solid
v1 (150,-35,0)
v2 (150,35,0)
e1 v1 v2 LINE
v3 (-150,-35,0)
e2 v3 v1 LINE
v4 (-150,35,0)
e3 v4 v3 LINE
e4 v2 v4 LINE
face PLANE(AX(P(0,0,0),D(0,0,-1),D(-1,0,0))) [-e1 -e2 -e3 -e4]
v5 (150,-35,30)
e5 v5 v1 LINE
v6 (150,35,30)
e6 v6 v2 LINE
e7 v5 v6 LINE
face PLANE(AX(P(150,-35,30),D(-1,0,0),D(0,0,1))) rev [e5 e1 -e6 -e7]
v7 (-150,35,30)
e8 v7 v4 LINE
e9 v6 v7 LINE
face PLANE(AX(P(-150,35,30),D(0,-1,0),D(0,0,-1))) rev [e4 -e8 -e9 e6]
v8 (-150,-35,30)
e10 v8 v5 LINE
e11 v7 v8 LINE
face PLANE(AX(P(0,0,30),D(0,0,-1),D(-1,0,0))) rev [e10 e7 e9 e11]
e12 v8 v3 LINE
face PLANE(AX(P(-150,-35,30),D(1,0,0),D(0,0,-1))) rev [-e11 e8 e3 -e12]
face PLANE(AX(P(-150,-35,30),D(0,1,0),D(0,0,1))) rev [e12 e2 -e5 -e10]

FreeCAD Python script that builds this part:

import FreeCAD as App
import Part
import Sketcher

doc = App.newDocument("Part")
body = doc.addObject("PartDesign::Body", "Body")

# Sketch on XY plane
sketch1 = body.newObject("Sketcher::SketchObject", "Sketch")
sketch1.AttachmentSupport = (doc.getObject("XY_Plane"), [""])
sketch1.MapMode = "FlatFace"
sketch1.addGeometry(Part.LineSegment(App.Vector(-150, 35, 0), App.Vector(-150, -35, 0)), False)
sketch1.addGeometry(Part.LineSegment(App.Vector(-150, -35, 0), App.Vector(150, -35, 0)), False)
sketch1.addGeometry(Part.LineSegment(App.Vector(150, -35, 0), App.Vector(150, 35, 0)), False)
sketch1.addGeometry(Part.LineSegment(App.Vector(150, 35, 0), App.Vector(-150, 35, 0)), False)
sketch1.addConstraint(Sketcher.Constraint("Coincident", 0, 2, 1, 1))
sketch1.addConstraint(Sketcher.Constraint("Coincident", 1, 2, 2, 1))
sketch1.addConstraint(Sketcher.Constraint("Coincident", 2, 2, 3, 1))
sketch1.addConstraint(Sketcher.Constraint("Coincident", 3, 2, 0, 1))
sketch1.addConstraint(Sketcher.Constraint("Vertical", 0))
sketch1.addConstraint(Sketcher.Constraint("Horizontal", 1))
sketch1.addConstraint(Sketcher.Constraint("Vertical", 2))
sketch1.addConstraint(Sketcher.Constraint("Horizontal", 3))
sketch1.addConstraint(Sketcher.Constraint("Symmetric", 0, 2, 2, 2, -1, 1))
sketch1.addConstraint(Sketcher.Constraint("DistanceX", 1, 1, 1, 2, 300.0))
sketch1.addConstraint(Sketcher.Constraint("DistanceY", 0, 2, 0, 1, 70.0))
pad1 = body.newObject("PartDesign::Pad", "Pad")
pad1.Profile = sketch1
pad1.Length = 30

doc.recompute()
